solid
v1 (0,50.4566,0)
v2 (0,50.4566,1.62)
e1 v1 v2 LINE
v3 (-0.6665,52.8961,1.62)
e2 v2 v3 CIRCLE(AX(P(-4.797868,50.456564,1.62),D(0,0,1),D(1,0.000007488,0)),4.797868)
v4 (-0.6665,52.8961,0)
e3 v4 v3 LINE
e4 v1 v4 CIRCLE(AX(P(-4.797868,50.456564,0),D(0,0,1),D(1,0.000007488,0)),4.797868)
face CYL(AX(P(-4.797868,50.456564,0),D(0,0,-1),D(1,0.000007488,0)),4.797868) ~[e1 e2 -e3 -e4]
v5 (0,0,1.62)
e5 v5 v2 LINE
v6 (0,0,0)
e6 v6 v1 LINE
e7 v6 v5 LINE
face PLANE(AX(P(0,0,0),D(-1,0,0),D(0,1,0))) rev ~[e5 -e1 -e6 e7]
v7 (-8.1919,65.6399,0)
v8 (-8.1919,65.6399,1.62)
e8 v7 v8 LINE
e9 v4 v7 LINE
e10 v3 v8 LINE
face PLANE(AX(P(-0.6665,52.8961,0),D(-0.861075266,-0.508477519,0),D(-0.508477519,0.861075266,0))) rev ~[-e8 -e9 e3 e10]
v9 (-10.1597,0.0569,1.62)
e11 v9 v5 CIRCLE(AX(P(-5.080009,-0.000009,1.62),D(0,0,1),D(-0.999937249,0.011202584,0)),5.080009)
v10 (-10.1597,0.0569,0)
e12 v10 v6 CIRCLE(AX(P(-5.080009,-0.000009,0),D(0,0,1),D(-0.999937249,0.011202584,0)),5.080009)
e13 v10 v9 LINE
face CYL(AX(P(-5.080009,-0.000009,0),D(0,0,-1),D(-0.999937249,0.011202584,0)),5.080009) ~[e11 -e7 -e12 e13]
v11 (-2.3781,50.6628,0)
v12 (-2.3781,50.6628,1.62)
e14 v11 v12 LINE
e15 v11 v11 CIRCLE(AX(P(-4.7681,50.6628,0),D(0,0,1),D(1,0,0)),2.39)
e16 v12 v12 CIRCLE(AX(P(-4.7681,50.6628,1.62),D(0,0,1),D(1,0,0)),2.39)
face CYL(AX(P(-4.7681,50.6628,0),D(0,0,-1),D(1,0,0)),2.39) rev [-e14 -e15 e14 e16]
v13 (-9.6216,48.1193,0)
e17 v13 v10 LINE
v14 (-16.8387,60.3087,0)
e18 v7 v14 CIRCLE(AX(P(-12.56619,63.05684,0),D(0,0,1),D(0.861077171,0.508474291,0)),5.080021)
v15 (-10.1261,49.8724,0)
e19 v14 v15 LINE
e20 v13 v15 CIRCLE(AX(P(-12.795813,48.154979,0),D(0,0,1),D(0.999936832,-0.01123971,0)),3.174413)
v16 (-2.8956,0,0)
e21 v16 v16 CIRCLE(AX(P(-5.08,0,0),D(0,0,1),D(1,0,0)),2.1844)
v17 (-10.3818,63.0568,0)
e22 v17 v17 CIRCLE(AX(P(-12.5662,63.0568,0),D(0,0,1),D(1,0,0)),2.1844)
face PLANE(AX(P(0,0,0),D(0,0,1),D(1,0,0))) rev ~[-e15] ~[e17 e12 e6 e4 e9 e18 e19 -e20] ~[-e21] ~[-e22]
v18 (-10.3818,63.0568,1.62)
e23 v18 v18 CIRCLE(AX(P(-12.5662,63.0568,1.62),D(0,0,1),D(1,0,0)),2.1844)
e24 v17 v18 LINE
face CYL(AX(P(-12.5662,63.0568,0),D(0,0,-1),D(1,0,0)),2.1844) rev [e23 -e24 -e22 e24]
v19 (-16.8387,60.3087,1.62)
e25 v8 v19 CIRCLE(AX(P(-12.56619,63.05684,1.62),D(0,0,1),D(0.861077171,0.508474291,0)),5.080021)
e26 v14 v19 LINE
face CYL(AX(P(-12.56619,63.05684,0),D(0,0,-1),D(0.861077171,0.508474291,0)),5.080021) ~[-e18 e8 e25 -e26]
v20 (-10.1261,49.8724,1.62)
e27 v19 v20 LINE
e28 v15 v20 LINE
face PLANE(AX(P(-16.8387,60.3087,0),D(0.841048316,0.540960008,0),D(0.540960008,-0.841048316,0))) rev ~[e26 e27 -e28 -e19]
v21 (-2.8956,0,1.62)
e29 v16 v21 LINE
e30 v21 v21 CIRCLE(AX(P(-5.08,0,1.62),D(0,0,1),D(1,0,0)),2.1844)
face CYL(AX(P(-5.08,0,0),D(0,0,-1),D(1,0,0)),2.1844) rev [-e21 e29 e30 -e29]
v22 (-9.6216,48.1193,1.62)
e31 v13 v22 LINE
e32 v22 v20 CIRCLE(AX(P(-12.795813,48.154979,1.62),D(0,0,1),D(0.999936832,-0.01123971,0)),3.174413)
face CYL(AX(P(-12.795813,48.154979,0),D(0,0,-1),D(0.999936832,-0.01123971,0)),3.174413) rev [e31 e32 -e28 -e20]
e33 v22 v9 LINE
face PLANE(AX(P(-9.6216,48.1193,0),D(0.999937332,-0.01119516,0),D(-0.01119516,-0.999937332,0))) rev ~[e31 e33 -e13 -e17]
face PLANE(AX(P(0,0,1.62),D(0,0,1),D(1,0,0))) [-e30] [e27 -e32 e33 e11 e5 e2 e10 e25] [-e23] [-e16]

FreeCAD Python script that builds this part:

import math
import FreeCAD as App
import Part
import Sketcher
Q = App.Units.Quantity

doc = App.newDocument("Part")
body = doc.addObject("PartDesign::Body", "Body")

# Sketch on XY plane
sketch1 = body.newObject("Sketcher::SketchObject", "Sketch")
sketch1.AttachmentSupport = (doc.getObject("XY_Plane"), [""])
sketch1.MapMode = "FlatFace"
sketch1.addGeometry([
    Part.LineSegment(App.Vector(-9.6, 48.1, 0), App.Vector(-10.2, 0.1, 0)),  # 0
    Part.ArcOfCircle(Part.Circle(App.Vector(-5.1, 0, 0), App.Vector(0, 0, 1), 5.1), math.radians(179), math.radians(360)),  # 1
    Part.LineSegment(App.Vector(0, 0, 0), App.Vector(0, 50.5, 0)),  # 2
    Part.ArcOfCircle(Part.Circle(App.Vector(-4.8, 50.5, 0), App.Vector(0, 0, 1), 4.8), math.radians(0), math.radians(31)),  # 3
    Part.LineSegment(App.Vector(-0.7, 52.9, 0), App.Vector(-8.2, 65.6, 0)),  # 4
    Part.ArcOfCircle(Part.Circle(App.Vector(-12.6, 63.1, 0), App.Vector(0, 0, 1), 5.1), math.radians(31), math.radians(213)),  # 5
    Part.LineSegment(App.Vector(-16.8, 60.3, 0), App.Vector(-10.1, 49.9, 0)),  # 6
    Part.ArcOfCircle(Part.Circle(App.Vector(-12.8, 48.2, 0), App.Vector(0, 0, 1), 3.2), math.radians(-1), math.radians(33)),  # 7
    Part.Circle(App.Vector(-5.1, 0, 0), App.Vector(0, 0, 1), 2.2),  # 8
    Part.Circle(App.Vector(-12.6, 63.1, 0), App.Vector(0, 0, 1), 2.2),  # 9
    Part.Circle(App.Vector(-4.8, 50.7, 0), App.Vector(0, 0, 1), 2.4),  # 10
], False)
sketch1.addConstraint([
    Sketcher.Constraint("Tangent", 0, 2, 1, 1),
    Sketcher.Constraint("Tangent", 1, 2, 2, 1),
    Sketcher.Constraint("Tangent", 2, 2, 3, 1),
    Sketcher.Constraint("Tangent", 3, 2, 4, 1),
    Sketcher.Constraint("Tangent", 4, 2, 5, 1),
    Sketcher.Constraint("Tangent", 5, 2, 6, 1),
    Sketcher.Constraint("Tangent", 6, 2, 7, 2),
    Sketcher.Constraint("Tangent", 7, 1, 0, 1),
    Sketcher.Constraint("Vertical", 2),
    Sketcher.Constraint("Coincident", 1, 2, -1, 1),
    Sketcher.Constraint("Coincident", 8, 3, 1, 3),
    Sketcher.Constraint("Coincident", 9, 3, 5, 3),
    Sketcher.Constraint("Equal", 1, 5),
    Sketcher.Constraint("Equal", 8, 9),
    Sketcher.Constraint("Radius", 1, Q("0.2 in")),
    Sketcher.Constraint("Diameter", 8, Q("0.172 in")),
    Sketcher.Constraint("Radius", 7, Q("0.125 in")),
    Sketcher.Constraint("Diameter", 10, Q("0.1882 in")),
    Sketcher.Constraint("Angle", 6, Q("-57.251 deg")),
    Sketcher.Constraint("Radius", 3, Q("4.7976 mm")),
    Sketcher.Constraint("DistanceX", 5, 3, 10, 3, Q("0.307 in")),
    Sketcher.Constraint("DistanceY", 6, 2, 3, 3, Q("0.023 in")),
    Sketcher.Constraint("DistanceY", 2, 1, 2, 2, Q("50.4566 mm")),
    Sketcher.Constraint("DistanceX", 7, 3, -1, 1, Q("0.5038 in")),
    Sketcher.Constraint("DistanceY", -1, 1, 10, 3, Q("1.9946 in")),
    Sketcher.Constraint("DistanceY", 7, 3, 5, 3, Q("0.5867 in")),
])
pad1 = body.newObject("PartDesign::Pad", "Pad")
pad1.Profile = sketch1
pad1.Length = 1.62

doc.recompute()
